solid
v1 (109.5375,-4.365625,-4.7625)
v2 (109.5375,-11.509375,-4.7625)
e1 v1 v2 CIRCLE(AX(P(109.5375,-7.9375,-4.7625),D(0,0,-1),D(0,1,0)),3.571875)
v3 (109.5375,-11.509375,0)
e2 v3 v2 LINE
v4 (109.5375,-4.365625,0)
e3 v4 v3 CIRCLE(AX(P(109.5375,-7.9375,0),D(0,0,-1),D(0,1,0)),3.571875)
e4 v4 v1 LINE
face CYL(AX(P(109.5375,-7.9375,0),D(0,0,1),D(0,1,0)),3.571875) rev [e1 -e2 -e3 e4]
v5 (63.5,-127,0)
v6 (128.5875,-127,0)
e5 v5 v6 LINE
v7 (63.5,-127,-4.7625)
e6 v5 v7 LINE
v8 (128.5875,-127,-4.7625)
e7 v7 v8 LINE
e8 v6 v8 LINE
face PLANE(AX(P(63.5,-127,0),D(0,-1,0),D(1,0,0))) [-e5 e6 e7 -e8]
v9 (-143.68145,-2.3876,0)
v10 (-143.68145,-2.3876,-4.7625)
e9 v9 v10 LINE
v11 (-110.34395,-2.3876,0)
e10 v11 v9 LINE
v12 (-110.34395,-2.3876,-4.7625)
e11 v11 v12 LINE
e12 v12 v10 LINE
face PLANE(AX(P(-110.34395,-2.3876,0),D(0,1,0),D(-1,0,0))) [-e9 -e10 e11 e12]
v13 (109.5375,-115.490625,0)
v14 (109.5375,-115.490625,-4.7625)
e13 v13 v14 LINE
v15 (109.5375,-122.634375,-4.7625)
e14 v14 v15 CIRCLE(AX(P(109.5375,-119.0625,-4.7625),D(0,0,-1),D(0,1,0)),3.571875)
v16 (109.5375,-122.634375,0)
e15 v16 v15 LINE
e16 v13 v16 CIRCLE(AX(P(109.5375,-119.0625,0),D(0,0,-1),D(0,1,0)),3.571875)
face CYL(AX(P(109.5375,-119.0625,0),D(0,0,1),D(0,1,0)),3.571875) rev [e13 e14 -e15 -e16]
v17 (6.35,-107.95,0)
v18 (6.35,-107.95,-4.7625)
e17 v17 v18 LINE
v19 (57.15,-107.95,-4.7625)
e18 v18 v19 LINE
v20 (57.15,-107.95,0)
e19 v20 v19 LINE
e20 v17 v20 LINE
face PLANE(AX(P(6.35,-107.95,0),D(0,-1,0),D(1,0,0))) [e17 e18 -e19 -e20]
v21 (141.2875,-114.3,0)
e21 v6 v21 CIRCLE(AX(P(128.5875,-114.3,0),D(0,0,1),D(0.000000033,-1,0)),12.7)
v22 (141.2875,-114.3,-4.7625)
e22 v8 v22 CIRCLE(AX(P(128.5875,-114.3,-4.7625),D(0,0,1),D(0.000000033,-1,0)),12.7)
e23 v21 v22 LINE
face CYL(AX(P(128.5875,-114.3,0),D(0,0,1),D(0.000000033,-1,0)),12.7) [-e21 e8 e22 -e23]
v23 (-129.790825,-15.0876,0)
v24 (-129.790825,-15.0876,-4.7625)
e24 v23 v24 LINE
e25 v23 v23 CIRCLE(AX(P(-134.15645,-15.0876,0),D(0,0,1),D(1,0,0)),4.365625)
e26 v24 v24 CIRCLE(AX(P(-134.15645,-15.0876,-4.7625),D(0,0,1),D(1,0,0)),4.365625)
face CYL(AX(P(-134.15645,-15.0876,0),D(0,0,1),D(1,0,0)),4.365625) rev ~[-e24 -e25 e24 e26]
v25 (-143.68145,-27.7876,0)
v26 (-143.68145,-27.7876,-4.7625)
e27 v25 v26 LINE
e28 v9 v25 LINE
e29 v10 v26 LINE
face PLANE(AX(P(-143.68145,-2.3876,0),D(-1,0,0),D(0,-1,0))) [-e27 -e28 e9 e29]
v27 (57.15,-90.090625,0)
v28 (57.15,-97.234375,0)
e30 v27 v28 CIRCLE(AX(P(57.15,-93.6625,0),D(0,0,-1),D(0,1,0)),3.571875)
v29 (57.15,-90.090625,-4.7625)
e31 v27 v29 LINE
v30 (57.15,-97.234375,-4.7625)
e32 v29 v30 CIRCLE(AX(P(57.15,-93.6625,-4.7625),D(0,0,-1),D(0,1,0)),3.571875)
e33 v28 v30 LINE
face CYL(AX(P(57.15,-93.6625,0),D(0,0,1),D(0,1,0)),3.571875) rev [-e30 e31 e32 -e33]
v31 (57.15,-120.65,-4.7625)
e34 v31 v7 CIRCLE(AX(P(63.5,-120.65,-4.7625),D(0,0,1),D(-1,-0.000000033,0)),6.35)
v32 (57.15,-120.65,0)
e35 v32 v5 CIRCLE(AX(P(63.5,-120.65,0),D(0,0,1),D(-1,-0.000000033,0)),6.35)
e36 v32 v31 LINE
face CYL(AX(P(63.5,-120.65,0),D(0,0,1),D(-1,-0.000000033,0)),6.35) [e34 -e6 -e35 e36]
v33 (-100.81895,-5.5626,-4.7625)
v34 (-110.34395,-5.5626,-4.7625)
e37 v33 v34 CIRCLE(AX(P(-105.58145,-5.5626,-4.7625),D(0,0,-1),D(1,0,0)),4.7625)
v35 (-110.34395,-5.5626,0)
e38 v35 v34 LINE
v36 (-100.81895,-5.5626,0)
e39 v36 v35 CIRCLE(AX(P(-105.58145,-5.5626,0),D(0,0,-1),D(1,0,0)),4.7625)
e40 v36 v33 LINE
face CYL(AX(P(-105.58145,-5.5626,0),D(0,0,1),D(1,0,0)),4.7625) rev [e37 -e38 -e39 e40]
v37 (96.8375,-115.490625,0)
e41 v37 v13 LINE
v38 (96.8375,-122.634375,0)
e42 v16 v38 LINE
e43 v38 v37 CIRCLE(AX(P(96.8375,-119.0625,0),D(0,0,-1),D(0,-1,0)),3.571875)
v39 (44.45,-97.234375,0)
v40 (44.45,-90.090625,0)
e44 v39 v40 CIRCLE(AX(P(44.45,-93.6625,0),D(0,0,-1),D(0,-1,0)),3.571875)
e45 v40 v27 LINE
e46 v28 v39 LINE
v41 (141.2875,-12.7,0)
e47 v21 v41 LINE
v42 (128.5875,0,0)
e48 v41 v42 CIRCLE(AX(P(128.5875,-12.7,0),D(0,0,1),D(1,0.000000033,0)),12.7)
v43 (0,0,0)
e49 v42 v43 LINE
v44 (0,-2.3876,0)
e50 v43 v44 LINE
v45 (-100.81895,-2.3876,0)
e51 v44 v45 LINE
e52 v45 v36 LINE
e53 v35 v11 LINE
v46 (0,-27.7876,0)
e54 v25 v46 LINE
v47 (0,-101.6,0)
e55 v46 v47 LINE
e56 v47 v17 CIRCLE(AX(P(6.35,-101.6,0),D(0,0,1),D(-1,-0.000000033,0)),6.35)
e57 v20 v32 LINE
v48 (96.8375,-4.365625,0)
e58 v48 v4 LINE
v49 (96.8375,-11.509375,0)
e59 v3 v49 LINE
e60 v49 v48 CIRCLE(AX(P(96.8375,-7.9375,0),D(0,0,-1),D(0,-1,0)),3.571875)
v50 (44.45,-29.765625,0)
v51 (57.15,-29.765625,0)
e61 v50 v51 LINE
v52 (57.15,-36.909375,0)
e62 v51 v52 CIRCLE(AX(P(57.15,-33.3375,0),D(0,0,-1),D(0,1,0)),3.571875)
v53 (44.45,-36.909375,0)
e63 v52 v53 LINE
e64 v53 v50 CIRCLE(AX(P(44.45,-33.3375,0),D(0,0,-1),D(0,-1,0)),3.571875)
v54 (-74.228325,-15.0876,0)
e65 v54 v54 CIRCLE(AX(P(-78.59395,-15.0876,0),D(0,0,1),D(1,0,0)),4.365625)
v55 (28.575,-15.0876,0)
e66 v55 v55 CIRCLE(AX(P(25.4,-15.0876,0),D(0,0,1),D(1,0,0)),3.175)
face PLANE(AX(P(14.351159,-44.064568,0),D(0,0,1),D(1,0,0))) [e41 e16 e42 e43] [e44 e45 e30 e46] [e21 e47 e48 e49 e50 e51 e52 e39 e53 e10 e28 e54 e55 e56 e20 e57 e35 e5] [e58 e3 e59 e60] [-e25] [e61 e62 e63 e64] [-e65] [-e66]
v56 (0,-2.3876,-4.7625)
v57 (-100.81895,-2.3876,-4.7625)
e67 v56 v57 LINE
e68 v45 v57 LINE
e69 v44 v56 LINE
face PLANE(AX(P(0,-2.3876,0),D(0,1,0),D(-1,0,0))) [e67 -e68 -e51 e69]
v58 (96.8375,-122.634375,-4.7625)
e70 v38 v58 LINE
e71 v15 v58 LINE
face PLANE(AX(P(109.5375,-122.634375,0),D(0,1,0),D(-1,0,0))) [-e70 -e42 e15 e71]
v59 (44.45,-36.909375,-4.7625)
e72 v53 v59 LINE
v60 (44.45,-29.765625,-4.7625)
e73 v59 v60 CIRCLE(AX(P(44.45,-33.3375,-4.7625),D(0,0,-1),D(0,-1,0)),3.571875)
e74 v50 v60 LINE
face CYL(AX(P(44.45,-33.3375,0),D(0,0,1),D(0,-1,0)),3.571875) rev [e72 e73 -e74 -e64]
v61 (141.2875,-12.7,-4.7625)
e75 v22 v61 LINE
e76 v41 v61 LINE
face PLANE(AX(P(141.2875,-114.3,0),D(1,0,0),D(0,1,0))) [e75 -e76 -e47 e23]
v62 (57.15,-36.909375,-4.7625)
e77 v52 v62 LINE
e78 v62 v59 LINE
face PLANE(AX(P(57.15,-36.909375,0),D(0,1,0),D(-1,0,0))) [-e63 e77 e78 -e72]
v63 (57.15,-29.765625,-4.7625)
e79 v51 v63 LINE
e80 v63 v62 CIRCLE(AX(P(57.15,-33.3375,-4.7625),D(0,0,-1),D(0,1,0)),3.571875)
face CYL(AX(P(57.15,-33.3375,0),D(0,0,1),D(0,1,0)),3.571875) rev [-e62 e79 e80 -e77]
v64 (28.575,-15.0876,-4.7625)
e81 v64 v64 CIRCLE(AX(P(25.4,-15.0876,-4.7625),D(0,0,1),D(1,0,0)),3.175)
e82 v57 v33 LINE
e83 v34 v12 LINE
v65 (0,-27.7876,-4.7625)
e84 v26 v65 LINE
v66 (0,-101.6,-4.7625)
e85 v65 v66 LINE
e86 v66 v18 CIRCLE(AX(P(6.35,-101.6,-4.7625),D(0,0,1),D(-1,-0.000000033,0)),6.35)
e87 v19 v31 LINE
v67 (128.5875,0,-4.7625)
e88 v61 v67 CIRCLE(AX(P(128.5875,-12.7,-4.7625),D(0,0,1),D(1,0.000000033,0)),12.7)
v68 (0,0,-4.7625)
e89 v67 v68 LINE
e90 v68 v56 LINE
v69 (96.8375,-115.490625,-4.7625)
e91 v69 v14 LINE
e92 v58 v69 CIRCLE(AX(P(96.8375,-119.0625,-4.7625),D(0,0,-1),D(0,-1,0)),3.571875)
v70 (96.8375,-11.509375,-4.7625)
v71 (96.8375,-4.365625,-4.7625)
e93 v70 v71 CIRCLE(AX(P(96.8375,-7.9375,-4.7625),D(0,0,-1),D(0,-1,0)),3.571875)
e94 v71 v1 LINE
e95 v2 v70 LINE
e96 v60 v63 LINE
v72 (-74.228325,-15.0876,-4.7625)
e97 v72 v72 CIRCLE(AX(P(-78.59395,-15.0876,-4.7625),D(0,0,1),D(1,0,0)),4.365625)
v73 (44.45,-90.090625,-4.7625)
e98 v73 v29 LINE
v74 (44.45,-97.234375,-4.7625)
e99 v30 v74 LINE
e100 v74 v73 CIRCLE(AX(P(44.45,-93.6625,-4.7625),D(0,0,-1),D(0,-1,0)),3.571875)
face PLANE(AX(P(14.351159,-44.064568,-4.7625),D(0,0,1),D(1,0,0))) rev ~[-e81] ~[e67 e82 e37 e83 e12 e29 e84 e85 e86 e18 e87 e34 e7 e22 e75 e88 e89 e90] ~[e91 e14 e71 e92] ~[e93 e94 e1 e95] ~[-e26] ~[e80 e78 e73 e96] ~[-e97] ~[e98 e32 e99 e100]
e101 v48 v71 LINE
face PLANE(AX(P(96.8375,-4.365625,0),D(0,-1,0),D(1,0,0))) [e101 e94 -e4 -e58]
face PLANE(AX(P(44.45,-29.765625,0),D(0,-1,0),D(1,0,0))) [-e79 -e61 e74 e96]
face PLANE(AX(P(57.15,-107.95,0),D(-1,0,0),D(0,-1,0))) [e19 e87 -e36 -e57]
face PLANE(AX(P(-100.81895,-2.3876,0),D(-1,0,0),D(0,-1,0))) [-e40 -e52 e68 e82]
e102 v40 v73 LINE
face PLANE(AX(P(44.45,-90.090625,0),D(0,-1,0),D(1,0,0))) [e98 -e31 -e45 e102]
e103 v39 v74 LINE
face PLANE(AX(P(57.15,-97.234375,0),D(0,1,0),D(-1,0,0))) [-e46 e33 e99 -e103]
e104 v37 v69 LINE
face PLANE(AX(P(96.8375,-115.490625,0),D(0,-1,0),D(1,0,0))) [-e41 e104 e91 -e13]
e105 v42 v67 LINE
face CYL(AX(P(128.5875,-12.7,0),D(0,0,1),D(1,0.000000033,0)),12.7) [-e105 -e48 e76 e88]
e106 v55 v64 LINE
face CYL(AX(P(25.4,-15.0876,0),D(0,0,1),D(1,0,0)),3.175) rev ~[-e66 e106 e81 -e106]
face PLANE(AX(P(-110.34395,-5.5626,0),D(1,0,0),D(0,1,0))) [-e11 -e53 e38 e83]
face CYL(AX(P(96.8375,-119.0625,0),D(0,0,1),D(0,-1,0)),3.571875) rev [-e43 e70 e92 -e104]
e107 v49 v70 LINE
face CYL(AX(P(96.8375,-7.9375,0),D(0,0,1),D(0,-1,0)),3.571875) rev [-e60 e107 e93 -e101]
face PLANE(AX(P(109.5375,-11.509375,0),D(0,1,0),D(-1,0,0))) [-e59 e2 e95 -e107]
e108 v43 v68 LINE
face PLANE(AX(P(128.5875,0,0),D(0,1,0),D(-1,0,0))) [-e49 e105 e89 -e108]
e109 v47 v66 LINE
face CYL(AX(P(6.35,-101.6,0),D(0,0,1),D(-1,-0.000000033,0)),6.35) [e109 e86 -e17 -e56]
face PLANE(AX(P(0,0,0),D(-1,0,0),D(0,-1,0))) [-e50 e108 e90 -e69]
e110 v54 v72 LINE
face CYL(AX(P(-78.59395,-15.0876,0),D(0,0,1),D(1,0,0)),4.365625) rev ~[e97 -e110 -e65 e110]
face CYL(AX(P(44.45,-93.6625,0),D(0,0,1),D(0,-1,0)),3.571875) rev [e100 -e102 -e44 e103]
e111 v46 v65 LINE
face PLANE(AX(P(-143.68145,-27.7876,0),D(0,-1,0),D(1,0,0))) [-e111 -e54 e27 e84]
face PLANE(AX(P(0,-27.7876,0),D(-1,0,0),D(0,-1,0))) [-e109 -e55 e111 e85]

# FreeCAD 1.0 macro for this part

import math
import FreeCAD as App
import Part
import Sketcher
Q = App.Units.Quantity

doc = App.newDocument("Part")
body = doc.addObject("PartDesign::Body", "Body")

sketch1 = body.newObject("Sketcher::SketchObject", "Sketch")
sketch1.AttachmentSupport = (doc.getObject("XY_Plane"), [""])
sketch1.MapMode = "FlatFace"
sketch1.addGeometry([
    Part.LineSegment(App.Vector(128.6, 0, 0), App.Vector(0, 0, 0)),
    Part.LineSegment(App.Vector(0, 0, 0), App.Vector(0, -2.4, 0)),
    Part.LineSegment(App.Vector(0, -2.4, 0), App.Vector(-100.8, -2.4, 0)),
    Part.LineSegment(App.Vector(-100.8, -2.4, 0), App.Vector(-100.8, -5.6, 0)),
    Part.ArcOfCircle(Part.Circle(App.Vector(-105.6, -5.6, 0), App.Vector(0, 0, 1), 4.8), math.radians(180), math.radians(360)),
    Part.LineSegment(App.Vector(-110.3, -5.6, 0), App.Vector(-110.3, -2.4, 0)),
    Part.LineSegment(App.Vector(-110.3, -2.4, 0), App.Vector(-143.7, -2.4, 0)),
    Part.LineSegment(App.Vector(-143.7, -2.4, 0), App.Vector(-143.7, -27.8, 0)),
    Part.LineSegment(App.Vector(-143.7, -27.8, 0), App.Vector(0, -27.8, 0)),
    Part.LineSegment(App.Vector(0, -27.8, 0), App.Vector(0, -101.6, 0)),
    Part.ArcOfCircle(Part.Circle(App.Vector(6.4, -101.6, 0), App.Vector(0, 0, 1), 6.4), math.radians(-180), math.radians(-90)),
    Part.LineSegment(App.Vector(6.3, -108, 0), App.Vector(57.1, -108, 0)),
    Part.LineSegment(App.Vector(57.1, -108, 0), App.Vector(57.1, -120.7, 0)),
    Part.ArcOfCircle(Part.Circle(App.Vector(63.5, -120.6, 0), App.Vector(0, 0, 1), 6.4), math.radians(-180), math.radians(-90)),
    Part.LineSegment(App.Vector(63.5, -127, 0), App.Vector(128.6, -127, 0)),
    Part.ArcOfCircle(Part.Circle(App.Vector(128.6, -114.3, 0), App.Vector(0, 0, 1), 12.7), math.radians(-90), math.radians(0)),
    Part.LineSegment(App.Vector(141.3, -114.3, 0), App.Vector(141.3, -12.7, 0)),
    Part.ArcOfCircle(Part.Circle(App.Vector(128.6, -12.7, 0), App.Vector(0, 0, 1), 12.7), math.radians(0), math.radians(90)),
    Part.LineSegment(App.Vector(96.8, -115.5, 0), App.Vector(109.5, -115.5, 0)),
    Part.ArcOfCircle(Part.Circle(App.Vector(109.5, -119.1, 0), App.Vector(0, 0, 1), 3.6), math.radians(-90), math.radians(90)),
    Part.LineSegment(App.Vector(109.5, -122.6, 0), App.Vector(96.8, -122.6, 0)),
    Part.ArcOfCircle(Part.Circle(App.Vector(96.8, -119.1, 0), App.Vector(0, 0, 1), 3.6), math.radians(90), math.radians(270)),
    Part.LineSegment(App.Vector(44.5, -90.1, 0), App.Vector(57.1, -90.1, 0)),
    Part.ArcOfCircle(Part.Circle(App.Vector(57.1, -93.7, 0), App.Vector(0, 0, 1), 3.6), math.radians(-90), math.radians(90)),
    Part.LineSegment(App.Vector(57.1, -97.2, 0), App.Vector(44.5, -97.2, 0)),
    Part.ArcOfCircle(Part.Circle(App.Vector(44.5, -93.7, 0), App.Vector(0, 0, 1), 3.6), math.radians(90), math.radians(270)),
    Part.Circle(App.Vector(-134.2, -15.1, 0), App.Vector(0, 0, 1), 4.4),
    Part.Circle(App.Vector(-78.6, -15.1, 0), App.Vector(0, 0, 1), 4.4),
    Part.Circle(App.Vector(25.4, -15.1, 0), App.Vector(0, 0, 1), 3.2),
    Part.LineSegment(App.Vector(44.5, -29.8, 0), App.Vector(57.1, -29.8, 0)),
    Part.ArcOfCircle(Part.Circle(App.Vector(57.1, -33.3, 0), App.Vector(0, 0, 1), 3.6), math.radians(-90), math.radians(90)),
    Part.LineSegment(App.Vector(57.1, -36.9, 0), App.Vector(44.5, -36.9, 0)),
    Part.ArcOfCircle(Part.Circle(App.Vector(44.5, -33.3, 0), App.Vector(0, 0, 1), 3.6), math.radians(90), math.radians(270)),
    Part.LineSegment(App.Vector(96.8, -4.4, 0), App.Vector(109.5, -4.4, 0)),
    Part.ArcOfCircle(Part.Circle(App.Vector(109.5, -7.9, 0), App.Vector(0, 0, 1), 3.6), math.radians(-90), math.radians(90)),
    Part.LineSegment(App.Vector(109.5, -11.5, 0), App.Vector(96.8, -11.5, 0)),
    Part.ArcOfCircle(Part.Circle(App.Vector(96.8, -7.9, 0), App.Vector(0, 0, 1), 3.6), math.radians(90), math.radians(270)),
], False)
sketch1.addConstraint([
    Sketcher.Constraint("Coincident", 0, 2, 1, 1),
    Sketcher.Constraint("Coincident", 1, 2, 2, 1),
    Sketcher.Constraint("Coincident", 2, 2, 3, 1),
    Sketcher.Constraint("Tangent", 3, 2, 4, 2),
    Sketcher.Constraint("Tangent", 4, 1, 5, 1),
    Sketcher.Constraint("Coincident", 5, 2, 6, 1),
    Sketcher.Constraint("Coincident", 6, 2, 7, 1),
    Sketcher.Constraint("Coincident", 7, 2, 8, 1),
    Sketcher.Constraint("Coincident", 8, 2, 9, 1),
    Sketcher.Constraint("Tangent", 9, 2, 10, 1),
    Sketcher.Constraint("Tangent", 10, 2, 11, 1),
    Sketcher.Constraint("Coincident", 11, 2, 12, 1),
    Sketcher.Constraint("Tangent", 12, 2, 13, 1),
    Sketcher.Constraint("Tangent", 13, 2, 14, 1),
    Sketcher.Constraint("Tangent", 14, 2, 15, 1),
    Sketcher.Constraint("Tangent", 15, 2, 16, 1),
    Sketcher.Constraint("Tangent", 16, 2, 17, 1),
    Sketcher.Constraint("Tangent", 17, 2, 0, 1),
    Sketcher.Constraint("Tangent", 18, 2, 19, 2),
    Sketcher.Constraint("Tangent", 19, 1, 20, 1),
    Sketcher.Constraint("Tangent", 20, 2, 21, 2),
    Sketcher.Constraint("Tangent", 21, 1, 18, 1),
    Sketcher.Constraint("Tangent", 22, 2, 23, 2),
    Sketcher.Constraint("Tangent", 23, 1, 24, 1),
    Sketcher.Constraint("Tangent", 24, 2, 25, 2),
    Sketcher.Constraint("Tangent", 25, 1, 22, 1),
    Sketcher.Constraint("Tangent", 29, 2, 30, 2),
    Sketcher.Constraint("Tangent", 30, 1, 31, 1),
    Sketcher.Constraint("Tangent", 31, 2, 32, 2),
    Sketcher.Constraint("Tangent", 32, 1, 29, 1),
    Sketcher.Constraint("Tangent", 33, 2, 34, 2),
    Sketcher.Constraint("Tangent", 34, 1, 35, 1),
    Sketcher.Constraint("Tangent", 35, 2, 36, 2),
    Sketcher.Constraint("Tangent", 36, 1, 33, 1),
    Sketcher.Constraint("Horizontal", 0),
    Sketcher.Constraint("Vertical", 1),
    Sketcher.Constraint("Horizontal", 2),
    Sketcher.Constraint("Vertical", 3),
    Sketcher.Constraint("Vertical", 5),
    Sketcher.Constraint("Horizontal", 6),
    Sketcher.Constraint("Vertical", 7),
    Sketcher.Constraint("Horizontal", 8),
    Sketcher.Constraint("Vertical", 9),
    Sketcher.Constraint("Horizontal", 11),
    Sketcher.Constraint("Vertical", 12),
    Sketcher.Constraint("Horizontal", 14),
    Sketcher.Constraint("Vertical", 16),
    Sketcher.Constraint("Horizontal", 18),
    Sketcher.Constraint("Horizontal", 20),
    Sketcher.Constraint("Horizontal", 22),
    Sketcher.Constraint("Horizontal", 24),
    Sketcher.Constraint("Horizontal", 29),
    Sketcher.Constraint("Horizontal", 31),
    Sketcher.Constraint("Horizontal", 33),
    Sketcher.Constraint("Horizontal", 35),
    Sketcher.Constraint("Coincident", 0, 2, -1, 1),
    Sketcher.Constraint("Equal", 10, 13),
    Sketcher.Constraint("Equal", 15, 17),
    Sketcher.Constraint("Equal", 21, 23),
    Sketcher.Constraint("Equal", 26, 27),
    Sketcher.Constraint("Equal", 25, 30),
    Sketcher.Constraint("Equal", 32, 34),
    Sketcher.Constraint("PointOnObject", 8, 2, -2),
    Sketcher.Constraint("Horizontal", 26, 3, 27, 3),
    Sketcher.Constraint("Horizontal", 27, 3, 28, 3),
    Sketcher.Constraint("Horizontal", 2, 2, 5, 2),
    Sketcher.Constraint("Vertical", 23, 3, 30, 3),
    Sketcher.Constraint("Vertical", 25, 3, 32, 3),
    Sketcher.Constraint("Vertical", 19, 3, 34, 3),
    Sketcher.Constraint("Vertical", 21, 3, 36, 3),
    Sketcher.Constraint("Vertical", 30, 3, 11, 2),
    Sketcher.Constraint("Equal", 20, 22),
    Sketcher.Constraint("Equal", 35, 12),
    Sketcher.Constraint("Radius", 15, Q("0.5 in")),
    Sketcher.Constraint("Diameter", 28, Q("0.25 in")),
    Sketcher.Constraint("DistanceX", 11, 1, 11, 2, Q("2 in")),
    Sketcher.Constraint("DistanceY", 7, 2, 7, 1, Q("1 in")),
    Sketcher.Constraint("DistanceY", 16, 1, 16, 2, Q("4 in")),
    Sketcher.Constraint("Radius", 10, Q("0.25 in")),
    Sketcher.Constraint("Diameter", 26, Q("0.34375 in")),
    Sketcher.Constraint("DistanceX", 18, 1, 18, 2, Q("0.5 in")),
    Sketcher.Constraint("DistanceX", -1, 1, 28, 3, Q("1 in")),
    Sketcher.Constraint("Radius", 4, Q("0.1875 in")),
    Sketcher.Constraint("Radius", 19, Q("0.140625 in")),
    Sketcher.Constraint("DistanceY", 21, 3, 23, 3, Q("1 in")),
    Sketcher.Constraint("DistanceY", 30, 3, 34, 3, Q("1 in")),
    Sketcher.Constraint("DistanceY", 28, 3, 1, 2, Q("0.5 in")),
    Sketcher.Constraint("DistanceX", 6, 2, 4, 3, Q("1.5 in")),
    Sketcher.Constraint("DistanceX", 0, 2, 0, 1, Q("5.0625 in")),
    Sketcher.Constraint("DistanceY", 1, 2, 1, 1, Q("0.094 in")),
    Sketcher.Constraint("DistanceY", 3, 2, 3, 1, Q("0.125 in")),
    Sketcher.Constraint("DistanceX", 19, 3, 15, 3, Q("0.75 in")),
    Sketcher.Constraint("DistanceX", 4, 1, 27, 3, Q("1.25 in")),
    Sketcher.Constraint("DistanceY", 19, 3, -1, 1, Q("4.6875 in")),
    Sketcher.Constraint("DistanceY", 30, 3, -1, 1, Q("1.3125 in")),
    Sketcher.Constraint("DistanceX", 26, 3, 4, 3, Q("1.125 in")),
    Sketcher.Constraint("DistanceX", 2, 2, 2, 1, 100.81895),
])
pad1 = body.newObject("PartDesign::Pad", "Pad")
pad1.Profile = sketch1
pad1.Length = Q("0.1875 in")
pad1.Reversed = True

doc.recompute()
